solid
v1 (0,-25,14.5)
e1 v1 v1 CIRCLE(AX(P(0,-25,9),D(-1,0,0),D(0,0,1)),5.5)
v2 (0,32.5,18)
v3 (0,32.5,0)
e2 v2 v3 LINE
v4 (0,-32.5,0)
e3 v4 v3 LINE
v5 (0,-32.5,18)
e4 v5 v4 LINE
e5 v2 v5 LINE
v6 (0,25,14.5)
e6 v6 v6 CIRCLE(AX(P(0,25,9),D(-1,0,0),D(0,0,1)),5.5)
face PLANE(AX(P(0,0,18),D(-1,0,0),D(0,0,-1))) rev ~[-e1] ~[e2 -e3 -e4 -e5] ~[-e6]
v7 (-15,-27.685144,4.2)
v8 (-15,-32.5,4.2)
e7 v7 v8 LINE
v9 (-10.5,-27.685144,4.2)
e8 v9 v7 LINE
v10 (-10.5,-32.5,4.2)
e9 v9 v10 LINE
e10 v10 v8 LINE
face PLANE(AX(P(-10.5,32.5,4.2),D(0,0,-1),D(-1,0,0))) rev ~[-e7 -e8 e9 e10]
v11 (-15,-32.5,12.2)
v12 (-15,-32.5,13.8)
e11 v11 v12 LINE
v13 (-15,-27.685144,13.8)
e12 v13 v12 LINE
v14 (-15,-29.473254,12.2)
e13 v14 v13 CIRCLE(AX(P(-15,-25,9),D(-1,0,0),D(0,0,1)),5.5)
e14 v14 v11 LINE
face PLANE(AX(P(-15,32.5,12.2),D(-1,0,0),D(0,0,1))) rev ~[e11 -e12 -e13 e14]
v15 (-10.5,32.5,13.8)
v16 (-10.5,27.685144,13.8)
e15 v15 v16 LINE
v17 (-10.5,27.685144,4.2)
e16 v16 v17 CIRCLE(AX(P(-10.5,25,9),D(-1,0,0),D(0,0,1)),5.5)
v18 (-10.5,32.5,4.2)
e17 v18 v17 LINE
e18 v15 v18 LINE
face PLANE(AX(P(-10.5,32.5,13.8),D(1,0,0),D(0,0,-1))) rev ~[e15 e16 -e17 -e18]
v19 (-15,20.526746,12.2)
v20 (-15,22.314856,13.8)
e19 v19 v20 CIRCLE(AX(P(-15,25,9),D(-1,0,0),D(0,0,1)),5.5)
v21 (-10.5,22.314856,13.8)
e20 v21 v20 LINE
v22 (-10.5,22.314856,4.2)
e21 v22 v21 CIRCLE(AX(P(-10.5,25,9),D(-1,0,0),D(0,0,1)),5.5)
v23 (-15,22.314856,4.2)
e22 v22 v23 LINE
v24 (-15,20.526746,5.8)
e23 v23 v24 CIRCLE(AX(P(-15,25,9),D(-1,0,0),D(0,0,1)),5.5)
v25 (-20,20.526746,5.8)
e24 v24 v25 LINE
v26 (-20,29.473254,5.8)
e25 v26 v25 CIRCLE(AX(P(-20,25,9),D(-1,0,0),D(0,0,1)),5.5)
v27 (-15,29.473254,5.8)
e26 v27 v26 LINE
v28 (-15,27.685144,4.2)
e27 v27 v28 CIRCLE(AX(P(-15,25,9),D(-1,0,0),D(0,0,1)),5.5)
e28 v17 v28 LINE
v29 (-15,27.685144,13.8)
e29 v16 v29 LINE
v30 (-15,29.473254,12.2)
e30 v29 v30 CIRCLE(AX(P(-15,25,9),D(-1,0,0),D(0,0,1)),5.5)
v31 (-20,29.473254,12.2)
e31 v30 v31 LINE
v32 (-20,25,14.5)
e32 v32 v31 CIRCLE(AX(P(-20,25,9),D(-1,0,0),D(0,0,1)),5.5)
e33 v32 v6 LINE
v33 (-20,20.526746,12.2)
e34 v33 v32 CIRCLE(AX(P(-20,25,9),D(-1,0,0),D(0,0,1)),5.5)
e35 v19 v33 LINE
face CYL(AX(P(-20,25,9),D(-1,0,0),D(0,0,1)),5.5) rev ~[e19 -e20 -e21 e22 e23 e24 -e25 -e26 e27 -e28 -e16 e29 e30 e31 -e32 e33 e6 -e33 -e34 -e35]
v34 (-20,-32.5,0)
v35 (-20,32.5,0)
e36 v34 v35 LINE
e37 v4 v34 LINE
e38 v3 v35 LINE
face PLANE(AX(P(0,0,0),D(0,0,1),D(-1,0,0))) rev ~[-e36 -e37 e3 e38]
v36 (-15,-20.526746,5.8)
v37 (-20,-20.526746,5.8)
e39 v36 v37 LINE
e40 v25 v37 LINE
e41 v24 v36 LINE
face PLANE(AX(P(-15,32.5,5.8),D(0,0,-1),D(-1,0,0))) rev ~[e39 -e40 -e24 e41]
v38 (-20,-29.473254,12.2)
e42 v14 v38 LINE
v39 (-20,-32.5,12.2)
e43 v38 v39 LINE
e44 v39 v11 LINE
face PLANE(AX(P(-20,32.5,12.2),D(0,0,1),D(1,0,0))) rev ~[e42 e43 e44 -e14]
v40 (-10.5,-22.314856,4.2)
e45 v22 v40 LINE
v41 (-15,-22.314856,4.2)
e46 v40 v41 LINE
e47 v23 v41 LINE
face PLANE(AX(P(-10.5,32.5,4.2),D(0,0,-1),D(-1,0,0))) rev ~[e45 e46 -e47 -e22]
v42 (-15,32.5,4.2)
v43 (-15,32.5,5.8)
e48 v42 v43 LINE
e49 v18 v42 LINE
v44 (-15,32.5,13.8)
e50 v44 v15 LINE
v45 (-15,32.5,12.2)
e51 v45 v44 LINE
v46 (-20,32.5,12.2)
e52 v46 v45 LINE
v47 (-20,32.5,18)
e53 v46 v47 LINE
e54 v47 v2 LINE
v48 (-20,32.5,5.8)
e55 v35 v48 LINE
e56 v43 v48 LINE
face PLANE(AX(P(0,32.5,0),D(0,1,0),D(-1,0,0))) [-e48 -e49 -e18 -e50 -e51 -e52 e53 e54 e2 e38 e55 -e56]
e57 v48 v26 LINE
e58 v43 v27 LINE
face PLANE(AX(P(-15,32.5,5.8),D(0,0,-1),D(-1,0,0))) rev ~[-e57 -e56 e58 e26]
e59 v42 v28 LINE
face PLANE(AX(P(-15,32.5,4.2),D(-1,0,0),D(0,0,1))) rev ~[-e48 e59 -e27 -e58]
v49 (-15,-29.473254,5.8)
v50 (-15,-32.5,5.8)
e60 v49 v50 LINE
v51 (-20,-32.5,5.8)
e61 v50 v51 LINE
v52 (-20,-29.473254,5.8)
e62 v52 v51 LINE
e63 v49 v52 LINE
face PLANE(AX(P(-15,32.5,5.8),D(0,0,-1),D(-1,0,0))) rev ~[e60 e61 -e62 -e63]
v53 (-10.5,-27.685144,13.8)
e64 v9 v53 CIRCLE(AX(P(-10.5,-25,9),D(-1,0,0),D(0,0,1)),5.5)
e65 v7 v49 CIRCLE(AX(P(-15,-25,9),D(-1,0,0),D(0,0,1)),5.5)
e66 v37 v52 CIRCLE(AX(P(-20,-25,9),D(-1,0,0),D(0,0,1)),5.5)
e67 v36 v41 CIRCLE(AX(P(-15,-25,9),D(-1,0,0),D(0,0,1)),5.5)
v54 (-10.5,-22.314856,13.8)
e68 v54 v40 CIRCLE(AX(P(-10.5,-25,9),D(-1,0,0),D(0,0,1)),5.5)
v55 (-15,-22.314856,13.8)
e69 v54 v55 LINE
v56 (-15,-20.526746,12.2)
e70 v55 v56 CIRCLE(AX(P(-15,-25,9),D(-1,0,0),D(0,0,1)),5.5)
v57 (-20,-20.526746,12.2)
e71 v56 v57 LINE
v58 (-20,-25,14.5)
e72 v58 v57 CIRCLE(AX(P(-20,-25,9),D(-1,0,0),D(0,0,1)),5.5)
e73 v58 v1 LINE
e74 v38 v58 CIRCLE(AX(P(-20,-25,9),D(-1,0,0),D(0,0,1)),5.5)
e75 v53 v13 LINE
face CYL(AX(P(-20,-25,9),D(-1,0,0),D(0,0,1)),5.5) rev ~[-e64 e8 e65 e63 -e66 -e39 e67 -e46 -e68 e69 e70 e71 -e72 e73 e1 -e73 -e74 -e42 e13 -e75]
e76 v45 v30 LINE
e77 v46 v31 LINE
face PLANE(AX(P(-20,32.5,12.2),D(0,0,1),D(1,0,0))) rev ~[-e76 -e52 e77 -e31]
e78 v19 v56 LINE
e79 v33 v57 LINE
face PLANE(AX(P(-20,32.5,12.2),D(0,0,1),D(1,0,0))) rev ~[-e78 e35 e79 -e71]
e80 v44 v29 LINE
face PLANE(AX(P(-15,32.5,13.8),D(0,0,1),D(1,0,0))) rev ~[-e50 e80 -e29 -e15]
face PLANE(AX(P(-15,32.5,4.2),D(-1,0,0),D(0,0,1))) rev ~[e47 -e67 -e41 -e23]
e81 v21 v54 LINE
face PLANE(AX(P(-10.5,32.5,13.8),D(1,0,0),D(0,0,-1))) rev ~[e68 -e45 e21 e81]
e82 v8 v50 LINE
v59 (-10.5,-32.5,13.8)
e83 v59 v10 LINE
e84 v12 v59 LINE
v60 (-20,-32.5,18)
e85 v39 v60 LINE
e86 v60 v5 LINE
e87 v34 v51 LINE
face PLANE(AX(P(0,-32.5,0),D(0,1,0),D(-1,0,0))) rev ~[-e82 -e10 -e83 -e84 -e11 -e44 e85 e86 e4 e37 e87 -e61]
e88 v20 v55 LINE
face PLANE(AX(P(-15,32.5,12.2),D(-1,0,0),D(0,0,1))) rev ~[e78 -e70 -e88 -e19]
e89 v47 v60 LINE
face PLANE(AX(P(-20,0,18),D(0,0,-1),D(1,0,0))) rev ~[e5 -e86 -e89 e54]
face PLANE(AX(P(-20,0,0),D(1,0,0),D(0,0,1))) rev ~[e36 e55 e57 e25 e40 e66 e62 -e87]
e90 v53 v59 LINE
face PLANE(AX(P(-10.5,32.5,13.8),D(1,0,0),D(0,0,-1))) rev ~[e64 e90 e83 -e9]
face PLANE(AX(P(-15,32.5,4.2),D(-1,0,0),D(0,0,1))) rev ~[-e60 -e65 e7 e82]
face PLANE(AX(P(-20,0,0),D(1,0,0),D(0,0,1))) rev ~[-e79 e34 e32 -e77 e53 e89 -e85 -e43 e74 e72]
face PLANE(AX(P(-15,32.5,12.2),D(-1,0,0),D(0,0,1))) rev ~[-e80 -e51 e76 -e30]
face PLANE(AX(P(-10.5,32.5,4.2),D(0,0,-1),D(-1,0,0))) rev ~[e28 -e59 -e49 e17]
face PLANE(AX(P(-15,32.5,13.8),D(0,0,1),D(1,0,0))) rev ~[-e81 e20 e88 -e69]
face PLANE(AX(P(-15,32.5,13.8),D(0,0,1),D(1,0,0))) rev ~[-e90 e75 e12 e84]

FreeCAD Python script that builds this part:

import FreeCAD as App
import Part
import Sketcher

V = App.Vector
Q = App.Units.Quantity


def add_polygon(sketch, points):
    """Adds a closed chain of lines whose ends are joined by coincident constraints."""
    first, n = sketch.GeometryCount, len(points)
    for a, b in zip(points, points[1:] + points[:1]):
        sketch.addGeometry(Part.LineSegment(App.Vector(*a, 0), App.Vector(*b, 0)), False)
    for i in range(n):
        sketch.addConstraint(Sketcher.Constraint("Coincident", first + i, 2, first + (i + 1) % n, 1))

doc = App.newDocument("Part")
params = doc.addObject("Spreadsheet::Sheet", "Params")
for row, (alias, value) in enumerate([
    ("sketch1_width", "20 mm"),
    ("sketch1_height", "18 mm"),
    ("pad1_length", "65 mm"),
    ("sketch2_diameter", "6.5 mm"),
    ("sketch3_diameter", "11 mm"),
    ("sketch3_diameter2", "6.5 mm"),
    ("pocket2_length", "26 mm"),
    ("sketch4_width", "5 mm"),
    ("sketch4_width2", "4.5 mm"),
    ("sketch4_height", "6.4 mm"),
    ("sketch4_height2", "9.6 mm"),
], start=1):
    params.set(f"A{row}", alias)
    params.set(f"B{row}", "=" + value)
    params.setAlias(f"B{row}", alias)

body = doc.addObject("PartDesign::Body", "Body")

# Sketch on XZ plane
sketch1 = body.newObject("Sketcher::SketchObject", "Sketch")
sketch1.AttachmentSupport = (doc.getObject("XZ_Plane"), [""])
sketch1.MapMode = "FlatFace"
add_polygon(sketch1, [(0, 18), (0, 0), (-20, 0), (-20, 18)])  # lines 0-3
sketch1.addConstraint([
    Sketcher.Constraint("Vertical", 0),
    Sketcher.Constraint("Horizontal", 1),
    Sketcher.Constraint("Vertical", 2),
    Sketcher.Constraint("Horizontal", 3),
    Sketcher.Constraint("Coincident", 0, 2, -1, 1),
    Sketcher.Constraint("DistanceX", 1, 2, 1, 1, Q("20 mm")),
    Sketcher.Constraint("DistanceY", 0, 2, 0, 1, Q("18 mm")),
])
sketch1.setExpression("Constraints[9]", "Params.sketch1_width")
sketch1.setExpression("Constraints[10]", "Params.sketch1_height")
pad1 = body.newObject("PartDesign::Pad", "Pad")
pad1.Profile = sketch1
pad1.setExpression("Length", "Params.pad1_length")
pad1.Midplane = True

# Sketch on YZ plane
sketch2 = body.newObject("Sketcher::SketchObject", "Sketch001")
sketch2.AttachmentSupport = (doc.getObject("YZ_Plane"), [""])
sketch2.MapMode = "FlatFace"
sketch2.AttachmentOffset = App.Placement(V(0, 0, -20), App.Rotation())
sketch2.addGeometry([
    Part.Circle(V(-25, 9, 0), V(0, 0, 1), 3.2),
    Part.Circle(V(25, 9, 0), V(0, 0, 1), 3.2),
], False)
sketch2.addConstraint([
    Sketcher.Constraint("Equal", 0, 1),
    Sketcher.Constraint("Symmetric", 0, 3, 1, 3, -2),
    Sketcher.Constraint("Diameter", 0, Q("6.5 mm")),
    Sketcher.Constraint("DistanceX", 0, 3, -1, 1, Q("25 mm")),
    Sketcher.Constraint("DistanceY", -1, 1, 0, 3, Q("9 mm")),
])
sketch2.setExpression("Constraints[2]", "Params.sketch2_diameter")
pocket1 = body.newObject("PartDesign::Pocket", "Pocket")
pocket1.Profile = sketch2
pocket1.Type = "ThroughAll"
pocket1.Reversed = True

# Sketch on YZ plane
sketch3 = body.newObject("Sketcher::SketchObject", "Sketch002")
sketch3.AttachmentSupport = (doc.getObject("YZ_Plane"), [""])
sketch3.MapMode = "FlatFace"
sketch3.AttachmentOffset = App.Placement(V(0, 0, -20), App.Rotation())
sketch3.addGeometry([
    Part.Circle(V(-25, 9, 0), V(0, 0, 1), 5.5),
    Part.Circle(V(-25, 9, 0), V(0, 0, 1), 3.2),
    Part.Circle(V(25, 9, 0), V(0, 0, 1), 5.5),
    Part.Circle(V(25, 9, 0), V(0, 0, 1), 3.2),
], False)
sketch3.addConstraint([
    Sketcher.Constraint("Coincident", 1, 3, 0, 3),
    Sketcher.Constraint("Coincident", 3, 3, 2, 3),
    Sketcher.Constraint("Equal", 0, 2),
    Sketcher.Constraint("Equal", 1, 3),
    Sketcher.Constraint("Symmetric", 0, 3, 2, 3, -2),
    Sketcher.Constraint("Diameter", 0, Q("11 mm")),
    Sketcher.Constraint("Diameter", 1, Q("6.5 mm")),
    Sketcher.Constraint("DistanceX", 0, 3, -1, 1, Q("25 mm")),
    Sketcher.Constraint("DistanceY", -1, 1, 0, 3, Q("9 mm")),
])
sketch3.setExpression("Constraints[5]", "Params.sketch3_diameter")
sketch3.setExpression("Constraints[6]", "Params.sketch3_diameter2")
pocket2 = body.newObject("PartDesign::Pocket", "Pocket001")
pocket2.Profile = sketch3
pocket2.setExpression("Length", "Params.pocket2_length")
pocket2.Reversed = True

# Sketch on XZ plane
sketch4 = body.newObject("Sketcher::SketchObject", "Sketch003")
sketch4.AttachmentSupport = (doc.getObject("XZ_Plane"), [""])
sketch4.MapMode = "FlatFace"
sketch4.AttachmentOffset = App.Placement(V(0, 0, -32.5), App.Rotation())
add_polygon(sketch4, [(-15, 5.8), (-20, 5.8), (-20, 12.2), (-15, 12.2), (-15, 13.8), (-10.5, 13.8), (-10.5, 4.2), (-15, 4.2)])  # lines 0-7
sketch4.addConstraint([
    Sketcher.Constraint("Horizontal", 0),
    Sketcher.Constraint("Vertical", 1),
    Sketcher.Constraint("Horizontal", 2),
    Sketcher.Constraint("Vertical", 3),
    Sketcher.Constraint("Horizontal", 4),
    Sketcher.Constraint("Vertical", 5),
    Sketcher.Constraint("Horizontal", 6),
    Sketcher.Constraint("Vertical", 7),
    Sketcher.Constraint("Vertical", 3, 2, 6, 2),
    Sketcher.Constraint("Equal", 3, 7),
    Sketcher.Constraint("DistanceX", 0, 2, 0, 1, Q("5 mm")),
    Sketcher.Constraint("DistanceX", 4, 1, 4, 2, Q("4.5 mm")),
    Sketcher.Constraint("DistanceY", 1, 1, 1, 2, Q("6.4 mm")),
    Sketcher.Constraint("DistanceY", 5, 2, 5, 1, Q("9.6 mm")),
    Sketcher.Constraint("DistanceX", 0, 2, -1, 1, Q("20 mm")),
    Sketcher.Constraint("DistanceY", -1, 1, 0, 2, Q("5.8 mm")),
])
sketch4.setExpression("Constraints[18]", "Params.sketch4_width")
sketch4.setExpression("Constraints[19]", "Params.sketch4_width2")
sketch4.setExpression("Constraints[20]", "Params.sketch4_height")
sketch4.setExpression("Constraints[21]", "Params.sketch4_height2")
pocket3 = body.newObject("PartDesign::Pocket", "Pocket002")
pocket3.Profile = sketch4
pocket3.Type = "ThroughAll"
pocket3.Reversed = True

doc.recompute()
